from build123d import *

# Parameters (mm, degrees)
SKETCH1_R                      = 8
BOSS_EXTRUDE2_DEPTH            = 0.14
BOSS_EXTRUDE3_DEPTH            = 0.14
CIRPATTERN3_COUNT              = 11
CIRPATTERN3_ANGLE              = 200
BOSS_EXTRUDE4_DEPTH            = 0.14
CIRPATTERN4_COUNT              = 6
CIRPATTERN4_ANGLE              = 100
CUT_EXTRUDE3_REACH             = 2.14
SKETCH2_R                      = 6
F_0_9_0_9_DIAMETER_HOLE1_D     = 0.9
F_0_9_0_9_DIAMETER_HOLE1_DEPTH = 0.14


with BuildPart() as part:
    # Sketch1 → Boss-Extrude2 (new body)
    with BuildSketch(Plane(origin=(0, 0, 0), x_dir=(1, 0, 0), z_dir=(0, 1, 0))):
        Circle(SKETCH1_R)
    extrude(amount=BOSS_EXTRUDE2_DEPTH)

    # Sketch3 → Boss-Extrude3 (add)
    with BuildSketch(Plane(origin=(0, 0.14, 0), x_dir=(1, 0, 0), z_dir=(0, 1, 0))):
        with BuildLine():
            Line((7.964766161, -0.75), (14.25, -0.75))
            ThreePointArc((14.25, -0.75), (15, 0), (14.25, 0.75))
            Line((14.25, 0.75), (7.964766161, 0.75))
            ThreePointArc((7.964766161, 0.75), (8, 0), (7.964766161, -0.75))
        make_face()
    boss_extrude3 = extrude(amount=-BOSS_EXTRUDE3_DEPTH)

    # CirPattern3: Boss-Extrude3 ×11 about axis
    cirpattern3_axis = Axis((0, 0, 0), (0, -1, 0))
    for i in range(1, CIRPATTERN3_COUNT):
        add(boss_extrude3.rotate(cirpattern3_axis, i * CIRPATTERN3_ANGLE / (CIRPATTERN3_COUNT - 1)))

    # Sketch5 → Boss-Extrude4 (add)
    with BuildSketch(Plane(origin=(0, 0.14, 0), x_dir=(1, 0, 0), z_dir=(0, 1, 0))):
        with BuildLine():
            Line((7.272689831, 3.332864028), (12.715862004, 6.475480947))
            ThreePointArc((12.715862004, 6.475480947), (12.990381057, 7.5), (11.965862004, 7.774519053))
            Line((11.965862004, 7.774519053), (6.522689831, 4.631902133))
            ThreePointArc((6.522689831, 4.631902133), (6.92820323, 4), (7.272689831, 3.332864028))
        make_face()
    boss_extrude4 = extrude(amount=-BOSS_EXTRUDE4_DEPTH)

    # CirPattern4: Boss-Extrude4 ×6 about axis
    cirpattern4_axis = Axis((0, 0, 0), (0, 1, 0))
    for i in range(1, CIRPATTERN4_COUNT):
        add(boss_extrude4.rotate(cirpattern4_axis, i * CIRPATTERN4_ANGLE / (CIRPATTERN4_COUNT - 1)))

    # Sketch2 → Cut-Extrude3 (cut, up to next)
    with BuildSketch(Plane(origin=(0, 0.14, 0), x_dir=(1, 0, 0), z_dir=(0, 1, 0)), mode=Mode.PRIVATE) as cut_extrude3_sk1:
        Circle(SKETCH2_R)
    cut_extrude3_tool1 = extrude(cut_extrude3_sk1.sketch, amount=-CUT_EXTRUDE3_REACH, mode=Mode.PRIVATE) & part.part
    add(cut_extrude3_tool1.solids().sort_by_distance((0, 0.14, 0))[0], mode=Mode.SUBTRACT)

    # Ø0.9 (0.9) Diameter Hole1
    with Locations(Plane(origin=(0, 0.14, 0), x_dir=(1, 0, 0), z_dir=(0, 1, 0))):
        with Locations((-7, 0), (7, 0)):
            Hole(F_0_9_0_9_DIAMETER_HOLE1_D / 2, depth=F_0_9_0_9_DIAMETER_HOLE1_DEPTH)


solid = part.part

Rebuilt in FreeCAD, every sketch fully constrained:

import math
import FreeCAD as App
import Part
import Sketcher
from FreeCAD import Vector
Q = App.Units.Quantity

doc = App.newDocument("Part")
body = doc.addObject("PartDesign::Body", "Body")

# Sketch on XZ plane
sketch1 = body.newObject("Sketcher::SketchObject", "Sketch")
sketch1.AttachmentSupport = (doc.getObject("XZ_Plane"), [""])
sketch1.MapMode = "FlatFace"
sketch1.addGeometry(Part.Circle(Vector(0, 0, 0), Vector(0, 0, 1), 8), False)
sketch1.addConstraint([
    Sketcher.Constraint("Coincident", 0, 3, -1, 1),
    Sketcher.Constraint("Diameter", 0, Q("16 mm")),
])
pad1 = body.newObject("PartDesign::Pad", "Pad")
pad1.Profile = sketch1
pad1.Length = 0.14
pad1.Reversed = True

# Sketch on XZ plane
sketch2 = body.newObject("Sketcher::SketchObject", "Sketch001")
sketch2.AttachmentSupport = (doc.getObject("XZ_Plane"), [""])
sketch2.MapMode = "FlatFace"
sketch2.AttachmentOffset = App.Placement(Vector(0, 0, -0.14), App.Rotation())
sketch2.addGeometry([
    Part.LineSegment(Vector(8, 0.8, 0), Vector(14.2, 0.8, 0)),
    Part.ArcOfCircle(Part.Circle(Vector(14.2, 0, 0), Vector(0, 0, 1), 0.8), math.radians(-90), math.radians(90)),
    Part.LineSegment(Vector(14.2, -0.8, 0), Vector(8, -0.8, 0)),
    Part.ArcOfCircle(Part.Circle(Vector(0, 0, 0), Vector(0, 0, 1), 8), math.radians(-5.38), math.radians(5.38)),
], False)
sketch2.addConstraint([
    Sketcher.Constraint("Tangent", 0, 2, 1, 2),
    Sketcher.Constraint("Tangent", 1, 1, 2, 1),
    Sketcher.Constraint("Coincident", 2, 2, 3, 1),
    Sketcher.Constraint("Coincident", 3, 2, 0, 1),
    Sketcher.Constraint("Horizontal", 0),
    Sketcher.Constraint("Horizontal", 2),
    Sketcher.Constraint("Coincident", 3, 3, -1, 1),
    Sketcher.Constraint("PointOnObject", 1, 3, -1),
    Sketcher.Constraint("Radius", 3, Q("8 mm")),
    Sketcher.Constraint("Radius", 1, Q("0.75 mm")),
    Sketcher.Constraint("DistanceX", -1, 1, 1, 3, Q("14.25 mm")),
])
pad2 = body.newObject("PartDesign::Pad", "Pad001")
pad2.Profile = sketch2
pad2.Length = 0.14
doc.recompute()

polarpattern = body.newObject("PartDesign::PolarPattern", "PolarPattern")
polarpattern.Originals = [pad2]
polarpattern.Axis = (doc.getObject("Y_Axis"), [""])
polarpattern.Angle = 200
polarpattern.Occurrences = 11
polarpattern.Reversed = True
body.Tip = polarpattern

# Sketch on XZ plane
sketch3 = body.newObject("Sketcher::SketchObject", "Sketch002")
sketch3.AttachmentSupport = (doc.getObject("XZ_Plane"), [""])
sketch3.MapMode = "FlatFace"
sketch3.AttachmentOffset = App.Placement(Vector(0, 0, -0.14), App.Rotation())
sketch3.addGeometry([
    Part.LineSegment(Vector(7.3, -3.3, 0), Vector(12.7, -6.5, 0)),
    Part.ArcOfCircle(Part.Circle(Vector(12.3, -7.1, 0), Vector(0, 0, 1), 0.8), math.radians(-120), math.radians(60)),
    Part.LineSegment(Vector(12, -7.8, 0), Vector(6.5, -4.6, 0)),
    Part.ArcOfCircle(Part.Circle(Vector(0, 0, 0), Vector(0, 0, 1), 8), math.radians(-35.38), math.radians(-24.62)),
], False)
sketch3.addConstraint([
    Sketcher.Constraint("Tangent", 0, 2, 1, 2),
    Sketcher.Constraint("Tangent", 1, 1, 2, 1),
    Sketcher.Constraint("Coincident", 2, 2, 3, 1),
    Sketcher.Constraint("Coincident", 3, 2, 0, 1),
    Sketcher.Constraint("Coincident", 3, 3, -1, 1),
    Sketcher.Constraint("Parallel", 0, 2),
    Sketcher.Constraint("Equal", 0, 2),
    Sketcher.Constraint("Radius", 3, Q("8 mm")),
    Sketcher.Constraint("Angle", 0, Q("-30 deg")),
    Sketcher.Constraint("Radius", 1, Q("0.75 mm")),
    Sketcher.Constraint("DistanceY", 1, 3, -1, 1, Q("7.125 mm")),
])
pad3 = body.newObject("PartDesign::Pad", "Pad002")
pad3.Profile = sketch3
pad3.Length = 0.14
doc.recompute()

polarpattern2 = body.newObject("PartDesign::PolarPattern", "PolarPattern001")
polarpattern2.Originals = [pad3]
polarpattern2.Axis = (doc.getObject("Y_Axis"), [""])
polarpattern2.Angle = 100
polarpattern2.Occurrences = 6
body.Tip = polarpattern2

# Sketch on XZ plane
sketch4 = body.newObject("Sketcher::SketchObject", "Sketch003")
sketch4.AttachmentSupport = (doc.getObject("XZ_Plane"), [""])
sketch4.MapMode = "FlatFace"
sketch4.AttachmentOffset = App.Placement(Vector(0, 0, -0.14), App.Rotation())
sketch4.addGeometry(Part.Circle(Vector(0, 0, 0), Vector(0, 0, 1), 6), False)
sketch4.addConstraint([
    Sketcher.Constraint("Coincident", 0, 3, -1, 1),
    Sketcher.Constraint("Diameter", 0, Q("12 mm")),
])
pocket1 = body.newObject("PartDesign::Pocket", "Pocket")
pocket1.Profile = sketch4
pocket1.Type = "UpToFirst"
pocket1.Reversed = True

# Sketch on XZ plane
sketch5 = body.newObject("Sketcher::SketchObject", "Sketch004")
sketch5.AttachmentSupport = (doc.getObject("XZ_Plane"), [""])
sketch5.MapMode = "FlatFace"
sketch5.AttachmentOffset = App.Placement(Vector(0, 0, -0.14), App.Rotation())
sketch5.addGeometry([
    Part.Circle(Vector(-7, 0, 0), Vector(0, 0, 1), 0.45),
    Part.Circle(Vector(7, 0, 0), Vector(0, 0, 1), 0.45),
], False)
sketch5.addConstraint([
    Sketcher.Constraint("Equal", 0, 1),
    Sketcher.Constraint("Symmetric", 0, 3, 1, 3, -1, 1),
    Sketcher.Constraint("PointOnObject", 0, 3, -1),
    Sketcher.Constraint("Diameter", 0, Q("0.9 mm")),
    Sketcher.Constraint("DistanceX", 0, 3, -1, 1, Q("7 mm")),
])
doc.recompute()
hole = body.newObject("PartDesign::Hole", "Hole")
hole.Profile = sketch5
hole.ThreadType = "None"
hole.Diameter = 0.9
hole.DepthType = "Dimension"
hole.Depth = 0.14
hole.DrillPoint = "Flat"
hole.Reversed = True

doc.recompute()
